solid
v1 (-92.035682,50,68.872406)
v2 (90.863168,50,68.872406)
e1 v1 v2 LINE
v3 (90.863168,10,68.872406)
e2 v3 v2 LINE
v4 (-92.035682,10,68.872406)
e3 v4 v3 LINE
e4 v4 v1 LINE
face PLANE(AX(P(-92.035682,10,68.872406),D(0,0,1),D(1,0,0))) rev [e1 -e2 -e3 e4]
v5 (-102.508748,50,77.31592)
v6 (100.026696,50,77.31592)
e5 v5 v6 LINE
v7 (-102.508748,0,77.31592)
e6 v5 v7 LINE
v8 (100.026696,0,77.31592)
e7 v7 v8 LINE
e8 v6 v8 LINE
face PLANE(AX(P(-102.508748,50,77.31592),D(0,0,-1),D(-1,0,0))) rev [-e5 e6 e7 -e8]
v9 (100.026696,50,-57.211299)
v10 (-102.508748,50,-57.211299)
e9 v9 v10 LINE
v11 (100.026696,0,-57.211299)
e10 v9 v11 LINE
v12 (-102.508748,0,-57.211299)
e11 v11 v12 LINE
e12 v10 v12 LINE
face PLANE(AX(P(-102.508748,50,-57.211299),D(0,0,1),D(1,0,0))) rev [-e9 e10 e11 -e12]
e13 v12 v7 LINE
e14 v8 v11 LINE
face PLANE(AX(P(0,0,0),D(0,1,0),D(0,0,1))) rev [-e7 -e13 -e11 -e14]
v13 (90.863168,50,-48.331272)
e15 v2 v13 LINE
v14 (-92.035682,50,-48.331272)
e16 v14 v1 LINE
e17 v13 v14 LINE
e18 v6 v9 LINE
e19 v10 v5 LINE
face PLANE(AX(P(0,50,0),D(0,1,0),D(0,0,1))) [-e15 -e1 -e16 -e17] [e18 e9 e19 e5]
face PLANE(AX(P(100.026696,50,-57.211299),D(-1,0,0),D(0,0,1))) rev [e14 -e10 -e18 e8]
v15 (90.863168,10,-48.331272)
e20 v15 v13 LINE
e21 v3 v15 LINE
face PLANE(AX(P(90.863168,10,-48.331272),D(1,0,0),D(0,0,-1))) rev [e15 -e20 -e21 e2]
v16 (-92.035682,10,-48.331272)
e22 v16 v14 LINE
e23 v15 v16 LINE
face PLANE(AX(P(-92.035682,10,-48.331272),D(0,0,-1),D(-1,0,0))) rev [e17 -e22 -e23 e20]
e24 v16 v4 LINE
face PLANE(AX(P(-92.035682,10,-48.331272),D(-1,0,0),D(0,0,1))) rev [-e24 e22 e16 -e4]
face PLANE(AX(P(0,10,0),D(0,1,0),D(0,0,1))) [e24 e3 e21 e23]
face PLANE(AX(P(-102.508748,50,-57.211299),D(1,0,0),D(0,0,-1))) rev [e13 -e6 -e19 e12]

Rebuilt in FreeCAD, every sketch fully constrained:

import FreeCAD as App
import Part
import Sketcher
from FreeCAD import Vector
Q = App.Units.Quantity

doc = App.newDocument("Part")
body = doc.addObject("PartDesign::Body", "Body")

sketch1 = body.newObject("Sketcher::SketchObject", "Sketch")
sketch1.AttachmentSupport = (doc.getObject("XZ_Plane"), [""])
sketch1.MapMode = "FlatFace"
sketch1.addGeometry([
    Part.LineSegment(Vector(-102.508748, -57.211299, 0), Vector(-102.508748, 77.31592, 0)),
    Part.LineSegment(Vector(-102.508748, 77.31592, 0), Vector(100.026696, 77.31592, 0)),
    Part.LineSegment(Vector(100.026696, 77.31592, 0), Vector(100.026696, -57.211299, 0)),
    Part.LineSegment(Vector(100.026696, -57.211299, 0), Vector(-102.508748, -57.211299, 0)),
], False)
sketch1.addConstraint([
    Sketcher.Constraint("Coincident", 0, 2, 1, 1),
    Sketcher.Constraint("Coincident", 1, 2, 2, 1),
    Sketcher.Constraint("Coincident", 2, 2, 3, 1),
    Sketcher.Constraint("Coincident", 3, 2, 0, 1),
    Sketcher.Constraint("Vertical", 0),
    Sketcher.Constraint("Horizontal", 1),
    Sketcher.Constraint("Vertical", 2),
    Sketcher.Constraint("Horizontal", 3),
    Sketcher.Constraint("DistanceY", 0, 1, 0, 2, Q("134.527219 mm")),
    Sketcher.Constraint("DistanceY", 2, 2, -1, 1, Q("57.211299 mm")),
    Sketcher.Constraint("DistanceX", 1, 1, 1, 2, Q("202.535445 mm")),
    Sketcher.Constraint("DistanceX", 0, 2, -1, 1, Q("102.508748 mm")),
])
pad1 = body.newObject("PartDesign::Pad", "Pad")
pad1.Profile = sketch1
pad1.Length = 50
pad1.Reversed = True

sketch2 = body.newObject("Sketcher::SketchObject", "Sketch001")
sketch2.AttachmentSupport = (doc.getObject("XZ_Plane"), [""])
sketch2.MapMode = "FlatFace"
sketch2.AttachmentOffset = App.Placement(Vector(0, 0, -50), App.Rotation())
sketch2.addGeometry([
    Part.LineSegment(Vector(-92.035682, -48.331272, 0), Vector(-92.035682, 68.872406, 0)),
    Part.LineSegment(Vector(-92.035682, 68.872406, 0), Vector(90.863168, 68.872406, 0)),
    Part.LineSegment(Vector(90.863168, 68.872406, 0), Vector(90.863168, -48.331272, 0)),
    Part.LineSegment(Vector(90.863168, -48.331272, 0), Vector(-92.035682, -48.331272, 0)),
], False)
sketch2.addConstraint([
    Sketcher.Constraint("Coincident", 0, 2, 1, 1),
    Sketcher.Constraint("Coincident", 1, 2, 2, 1),
    Sketcher.Constraint("Coincident", 2, 2, 3, 1),
    Sketcher.Constraint("Coincident", 3, 2, 0, 1),
    Sketcher.Constraint("Vertical", 0),
    Sketcher.Constraint("Horizontal", 1),
    Sketcher.Constraint("Vertical", 2),
    Sketcher.Constraint("Horizontal", 3),
    Sketcher.Constraint("DistanceX", 1, 1, 1, 2, Q("182.89885 mm")),
    Sketcher.Constraint("DistanceY", 0, 1, 0, 2, Q("117.203678 mm")),
    Sketcher.Constraint("DistanceX", 0, 2, -1, 1, Q("92.035682 mm")),
    Sketcher.Constraint("DistanceY", -1, 1, 0, 2, Q("68.872406 mm")),
])
pocket1 = body.newObject("PartDesign::Pocket", "Pocket")
pocket1.Profile = sketch2
pocket1.Length = 40
pocket1.Reversed = True

doc.recompute()
